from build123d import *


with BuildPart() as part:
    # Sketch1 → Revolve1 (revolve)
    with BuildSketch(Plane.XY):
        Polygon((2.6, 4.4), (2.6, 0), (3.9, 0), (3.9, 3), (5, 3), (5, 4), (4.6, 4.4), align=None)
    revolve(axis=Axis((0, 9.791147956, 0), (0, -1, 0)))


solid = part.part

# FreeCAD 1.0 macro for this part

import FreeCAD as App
import Part
import Sketcher

V = App.Vector
Q = App.Units.Quantity


def add_polygon(sketch, points):
    """Adds a closed chain of lines whose ends are joined by coincident constraints."""
    first, n = sketch.GeometryCount, len(points)
    for a, b in zip(points, points[1:] + points[:1]):
        sketch.addGeometry(Part.LineSegment(App.Vector(*a, 0), App.Vector(*b, 0)), False)
    for i in range(n):
        sketch.addConstraint(Sketcher.Constraint("Coincident", first + i, 2, first + (i + 1) % n, 1))

doc = App.newDocument("Part")
body = doc.addObject("PartDesign::Body", "Body")

# Sketch on XY plane
sketch1 = body.newObject("Sketcher::SketchObject", "Sketch")
sketch1.AttachmentSupport = (doc.getObject("XY_Plane"), [""])
sketch1.MapMode = "FlatFace"
add_polygon(sketch1, [(2.6, 4.4), (2.6, 0), (3.9, 0), (3.9, 3), (5, 3), (5, 4), (4.6, 4.4)])  # lines 0-6
sketch1.addConstraint(Sketcher.Constraint("Vertical", 0))
sketch1.addConstraint(Sketcher.Constraint("Horizontal", 1))
sketch1.addConstraint(Sketcher.Constraint("Vertical", 2))
sketch1.addConstraint(Sketcher.Constraint("Horizontal", 3))
sketch1.addConstraint(Sketcher.Constraint("Vertical", 4))
sketch1.addConstraint(Sketcher.Constraint("Horizontal", 6))
sketch1.addConstraint(Sketcher.Constraint("PointOnObject", 0, 2, -1))
sketch1.addConstraint(Sketcher.Constraint("DistanceX", 6, 2, 6, 1, 2.0))
sketch1.addConstraint(Sketcher.Constraint("DistanceY", 2, 1, 2, 2, 3.0))
sketch1.addConstraint(Sketcher.Constraint("DistanceY", 4, 1, 4, 2, 1.0))
sketch1.addConstraint(Sketcher.Constraint("Angle", 5, Q("135 deg")))
sketch1.addConstraint(Sketcher.Constraint("DistanceX", 1, 1, 1, 2, 1.3))
sketch1.addConstraint(Sketcher.Constraint("DistanceX", 3, 1, 3, 2, 1.1))
sketch1.addConstraint(Sketcher.Constraint("DistanceX", -1, 1, 3, 2, 5.0))
revolution = body.newObject("PartDesign::Revolution", "Revolution")
revolution.Profile = sketch1
revolution.ReferenceAxis = (sketch1, ["V_Axis"])
revolution.Angle = 360

doc.recompute()
